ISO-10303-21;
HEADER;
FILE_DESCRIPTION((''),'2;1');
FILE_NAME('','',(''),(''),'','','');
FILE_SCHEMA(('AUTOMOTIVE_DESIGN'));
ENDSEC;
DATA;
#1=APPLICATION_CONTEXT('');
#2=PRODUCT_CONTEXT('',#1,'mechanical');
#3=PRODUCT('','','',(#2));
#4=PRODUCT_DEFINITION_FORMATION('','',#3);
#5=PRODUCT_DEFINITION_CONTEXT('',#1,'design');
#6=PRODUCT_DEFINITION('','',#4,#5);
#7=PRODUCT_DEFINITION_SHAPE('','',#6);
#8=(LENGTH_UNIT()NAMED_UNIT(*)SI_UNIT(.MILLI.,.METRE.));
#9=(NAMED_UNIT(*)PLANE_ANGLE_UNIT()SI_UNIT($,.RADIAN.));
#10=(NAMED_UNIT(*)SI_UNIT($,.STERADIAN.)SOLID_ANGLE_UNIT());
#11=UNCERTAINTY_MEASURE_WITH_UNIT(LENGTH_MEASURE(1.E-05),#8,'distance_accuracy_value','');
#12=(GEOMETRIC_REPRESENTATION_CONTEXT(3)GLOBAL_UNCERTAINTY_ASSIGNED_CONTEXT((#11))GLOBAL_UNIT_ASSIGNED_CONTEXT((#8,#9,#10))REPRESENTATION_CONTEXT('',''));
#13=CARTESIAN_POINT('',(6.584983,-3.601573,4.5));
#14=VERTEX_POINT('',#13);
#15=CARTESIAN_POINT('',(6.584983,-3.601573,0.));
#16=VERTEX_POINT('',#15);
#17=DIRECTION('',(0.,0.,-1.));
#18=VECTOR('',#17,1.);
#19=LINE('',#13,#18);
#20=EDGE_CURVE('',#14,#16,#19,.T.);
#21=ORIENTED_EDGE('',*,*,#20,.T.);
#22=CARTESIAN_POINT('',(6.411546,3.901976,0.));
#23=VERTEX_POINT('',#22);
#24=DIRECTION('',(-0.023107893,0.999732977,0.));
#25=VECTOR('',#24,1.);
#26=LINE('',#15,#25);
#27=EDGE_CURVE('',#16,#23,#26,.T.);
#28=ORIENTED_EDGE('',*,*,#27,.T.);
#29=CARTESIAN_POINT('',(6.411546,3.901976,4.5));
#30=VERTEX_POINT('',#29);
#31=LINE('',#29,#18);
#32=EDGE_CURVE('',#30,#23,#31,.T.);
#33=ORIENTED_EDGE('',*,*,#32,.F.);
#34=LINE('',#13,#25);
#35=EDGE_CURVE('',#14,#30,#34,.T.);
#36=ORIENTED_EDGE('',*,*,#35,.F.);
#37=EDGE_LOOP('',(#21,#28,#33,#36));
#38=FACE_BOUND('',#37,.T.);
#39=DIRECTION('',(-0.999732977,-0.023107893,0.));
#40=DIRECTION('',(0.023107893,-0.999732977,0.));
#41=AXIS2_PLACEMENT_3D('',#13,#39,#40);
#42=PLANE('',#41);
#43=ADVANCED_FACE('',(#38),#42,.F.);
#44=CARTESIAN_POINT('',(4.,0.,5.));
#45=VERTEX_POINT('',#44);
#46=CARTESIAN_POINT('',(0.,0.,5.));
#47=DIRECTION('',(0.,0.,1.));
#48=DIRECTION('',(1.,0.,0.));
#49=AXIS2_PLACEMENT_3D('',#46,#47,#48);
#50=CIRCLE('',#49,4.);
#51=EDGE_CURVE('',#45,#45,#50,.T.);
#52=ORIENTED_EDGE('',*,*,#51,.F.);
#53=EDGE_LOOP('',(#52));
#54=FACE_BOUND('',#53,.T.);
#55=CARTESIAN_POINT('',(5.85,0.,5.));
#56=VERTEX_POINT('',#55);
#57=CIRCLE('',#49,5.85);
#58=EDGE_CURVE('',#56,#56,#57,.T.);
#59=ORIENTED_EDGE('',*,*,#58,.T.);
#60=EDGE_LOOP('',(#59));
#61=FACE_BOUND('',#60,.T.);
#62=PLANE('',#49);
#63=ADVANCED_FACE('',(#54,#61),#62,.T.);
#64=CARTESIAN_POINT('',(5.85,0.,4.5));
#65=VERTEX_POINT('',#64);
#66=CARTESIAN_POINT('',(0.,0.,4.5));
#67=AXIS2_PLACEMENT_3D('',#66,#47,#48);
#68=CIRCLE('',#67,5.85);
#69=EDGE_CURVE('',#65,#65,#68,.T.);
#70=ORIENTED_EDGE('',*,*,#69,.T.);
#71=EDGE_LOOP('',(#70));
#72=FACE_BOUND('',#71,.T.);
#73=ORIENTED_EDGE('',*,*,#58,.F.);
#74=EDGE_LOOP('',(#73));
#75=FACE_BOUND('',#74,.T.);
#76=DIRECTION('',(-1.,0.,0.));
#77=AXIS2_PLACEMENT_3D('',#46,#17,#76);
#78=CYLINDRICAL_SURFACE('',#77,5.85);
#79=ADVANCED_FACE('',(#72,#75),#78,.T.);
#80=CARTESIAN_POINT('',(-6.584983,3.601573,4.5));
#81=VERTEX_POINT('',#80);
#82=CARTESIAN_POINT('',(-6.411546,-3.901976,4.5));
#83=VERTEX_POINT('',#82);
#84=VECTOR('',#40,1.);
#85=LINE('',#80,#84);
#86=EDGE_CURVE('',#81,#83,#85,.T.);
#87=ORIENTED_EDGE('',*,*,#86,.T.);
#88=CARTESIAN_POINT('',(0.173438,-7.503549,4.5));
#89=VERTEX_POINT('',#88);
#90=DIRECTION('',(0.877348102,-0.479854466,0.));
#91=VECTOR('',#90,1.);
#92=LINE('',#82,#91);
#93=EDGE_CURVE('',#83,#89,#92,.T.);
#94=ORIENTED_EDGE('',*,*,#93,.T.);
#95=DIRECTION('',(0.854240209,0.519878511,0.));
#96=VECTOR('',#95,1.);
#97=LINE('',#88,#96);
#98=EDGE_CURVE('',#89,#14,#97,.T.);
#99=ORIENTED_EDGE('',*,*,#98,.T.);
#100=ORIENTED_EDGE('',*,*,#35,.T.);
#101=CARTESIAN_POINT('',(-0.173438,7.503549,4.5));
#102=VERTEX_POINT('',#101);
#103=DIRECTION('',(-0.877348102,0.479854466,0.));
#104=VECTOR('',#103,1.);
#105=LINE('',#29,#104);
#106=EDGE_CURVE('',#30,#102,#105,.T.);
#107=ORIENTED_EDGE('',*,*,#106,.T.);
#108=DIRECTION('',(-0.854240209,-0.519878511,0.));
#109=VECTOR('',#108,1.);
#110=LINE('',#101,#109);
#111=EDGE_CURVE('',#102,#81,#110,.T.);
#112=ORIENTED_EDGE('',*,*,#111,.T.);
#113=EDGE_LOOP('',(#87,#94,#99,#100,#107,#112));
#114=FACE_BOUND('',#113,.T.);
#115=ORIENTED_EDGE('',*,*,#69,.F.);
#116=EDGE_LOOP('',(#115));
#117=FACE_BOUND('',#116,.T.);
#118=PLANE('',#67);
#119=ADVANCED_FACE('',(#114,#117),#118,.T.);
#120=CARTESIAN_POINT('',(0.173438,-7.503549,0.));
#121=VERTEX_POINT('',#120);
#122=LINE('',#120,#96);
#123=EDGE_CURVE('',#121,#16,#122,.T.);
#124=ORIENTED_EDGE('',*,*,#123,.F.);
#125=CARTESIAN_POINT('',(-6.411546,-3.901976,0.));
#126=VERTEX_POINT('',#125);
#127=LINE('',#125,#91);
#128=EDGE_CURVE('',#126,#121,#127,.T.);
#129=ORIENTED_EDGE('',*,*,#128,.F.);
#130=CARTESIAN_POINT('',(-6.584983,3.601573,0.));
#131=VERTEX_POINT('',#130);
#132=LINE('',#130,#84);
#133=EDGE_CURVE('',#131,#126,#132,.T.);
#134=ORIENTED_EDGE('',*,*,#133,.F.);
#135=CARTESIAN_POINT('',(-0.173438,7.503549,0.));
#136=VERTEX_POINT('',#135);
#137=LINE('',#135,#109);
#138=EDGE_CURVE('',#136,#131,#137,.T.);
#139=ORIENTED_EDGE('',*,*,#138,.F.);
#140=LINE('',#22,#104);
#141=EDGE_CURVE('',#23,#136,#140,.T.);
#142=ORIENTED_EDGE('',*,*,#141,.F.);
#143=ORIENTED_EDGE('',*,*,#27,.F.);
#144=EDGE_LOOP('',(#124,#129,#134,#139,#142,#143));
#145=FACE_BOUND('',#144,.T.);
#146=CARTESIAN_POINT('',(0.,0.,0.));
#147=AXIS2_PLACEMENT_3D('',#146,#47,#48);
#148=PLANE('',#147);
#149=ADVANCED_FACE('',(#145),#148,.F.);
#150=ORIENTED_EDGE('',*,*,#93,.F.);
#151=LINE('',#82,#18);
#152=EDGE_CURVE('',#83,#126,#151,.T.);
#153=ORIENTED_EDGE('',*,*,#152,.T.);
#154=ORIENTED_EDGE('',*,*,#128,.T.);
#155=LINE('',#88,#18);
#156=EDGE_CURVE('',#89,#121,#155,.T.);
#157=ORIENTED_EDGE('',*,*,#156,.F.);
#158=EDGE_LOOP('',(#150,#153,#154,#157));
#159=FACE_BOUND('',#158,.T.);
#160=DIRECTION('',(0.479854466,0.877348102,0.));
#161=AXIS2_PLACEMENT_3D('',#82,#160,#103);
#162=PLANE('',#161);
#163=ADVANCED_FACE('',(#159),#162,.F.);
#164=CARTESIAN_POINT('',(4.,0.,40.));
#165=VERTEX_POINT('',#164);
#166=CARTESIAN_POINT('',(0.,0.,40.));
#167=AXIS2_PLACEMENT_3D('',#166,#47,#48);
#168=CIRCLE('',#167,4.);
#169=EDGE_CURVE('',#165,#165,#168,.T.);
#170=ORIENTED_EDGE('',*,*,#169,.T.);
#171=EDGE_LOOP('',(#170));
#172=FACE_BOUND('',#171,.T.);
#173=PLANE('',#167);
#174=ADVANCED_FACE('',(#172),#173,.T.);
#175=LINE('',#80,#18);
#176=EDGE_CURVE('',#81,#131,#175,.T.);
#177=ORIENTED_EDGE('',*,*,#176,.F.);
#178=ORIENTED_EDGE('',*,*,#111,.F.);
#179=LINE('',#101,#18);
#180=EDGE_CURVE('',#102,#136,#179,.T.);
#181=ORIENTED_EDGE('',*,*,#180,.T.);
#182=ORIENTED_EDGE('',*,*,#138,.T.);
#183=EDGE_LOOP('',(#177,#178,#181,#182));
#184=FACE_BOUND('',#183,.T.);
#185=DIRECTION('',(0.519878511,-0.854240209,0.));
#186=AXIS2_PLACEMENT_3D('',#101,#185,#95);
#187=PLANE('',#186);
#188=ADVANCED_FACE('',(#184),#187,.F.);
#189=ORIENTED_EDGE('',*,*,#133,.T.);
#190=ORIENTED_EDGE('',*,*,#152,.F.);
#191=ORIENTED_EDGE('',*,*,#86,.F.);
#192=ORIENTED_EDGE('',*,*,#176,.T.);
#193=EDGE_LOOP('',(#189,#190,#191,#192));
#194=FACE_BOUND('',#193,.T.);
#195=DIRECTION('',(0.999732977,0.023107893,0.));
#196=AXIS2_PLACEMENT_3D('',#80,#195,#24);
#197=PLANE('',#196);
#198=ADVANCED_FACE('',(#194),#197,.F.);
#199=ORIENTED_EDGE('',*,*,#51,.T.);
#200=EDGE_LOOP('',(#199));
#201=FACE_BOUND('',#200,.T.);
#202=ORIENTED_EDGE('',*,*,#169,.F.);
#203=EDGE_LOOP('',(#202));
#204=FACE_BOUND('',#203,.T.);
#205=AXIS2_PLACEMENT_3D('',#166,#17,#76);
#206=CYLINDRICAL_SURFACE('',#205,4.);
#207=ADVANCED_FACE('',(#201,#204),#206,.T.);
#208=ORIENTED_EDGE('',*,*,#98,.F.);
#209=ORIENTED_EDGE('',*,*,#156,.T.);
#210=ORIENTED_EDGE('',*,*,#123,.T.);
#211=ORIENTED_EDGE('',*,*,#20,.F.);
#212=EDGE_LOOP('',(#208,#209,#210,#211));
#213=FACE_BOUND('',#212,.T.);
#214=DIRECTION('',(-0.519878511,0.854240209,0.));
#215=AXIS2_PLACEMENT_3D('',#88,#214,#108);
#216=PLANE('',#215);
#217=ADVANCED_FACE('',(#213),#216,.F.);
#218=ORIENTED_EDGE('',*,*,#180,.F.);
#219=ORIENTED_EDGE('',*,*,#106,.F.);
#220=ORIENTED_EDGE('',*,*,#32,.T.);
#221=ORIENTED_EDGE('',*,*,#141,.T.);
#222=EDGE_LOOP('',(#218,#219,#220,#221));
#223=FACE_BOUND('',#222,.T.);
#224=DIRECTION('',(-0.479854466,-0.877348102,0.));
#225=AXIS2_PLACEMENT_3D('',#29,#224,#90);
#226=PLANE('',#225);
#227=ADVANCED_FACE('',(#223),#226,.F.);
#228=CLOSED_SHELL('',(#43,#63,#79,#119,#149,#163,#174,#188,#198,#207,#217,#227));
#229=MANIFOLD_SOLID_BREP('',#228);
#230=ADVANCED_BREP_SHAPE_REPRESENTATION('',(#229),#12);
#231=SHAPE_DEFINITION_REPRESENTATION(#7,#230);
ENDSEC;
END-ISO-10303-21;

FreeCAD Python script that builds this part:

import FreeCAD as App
import Part
import Sketcher

V = App.Vector


def add_polygon(sketch, points):
    """Adds a closed chain of lines whose ends are joined by coincident constraints."""
    first, n = sketch.GeometryCount, len(points)
    for a, b in zip(points, points[1:] + points[:1]):
        sketch.addGeometry(Part.LineSegment(App.Vector(*a, 0), App.Vector(*b, 0)), False)
    for i in range(n):
        sketch.addConstraint(Sketcher.Constraint("Coincident", first + i, 2, first + (i + 1) % n, 1))

doc = App.newDocument("Part")
body = doc.addObject("PartDesign::Body", "Body")

# Sketch on XY plane
sketch1 = body.newObject("Sketcher::SketchObject", "Sketch")
sketch1.AttachmentSupport = (doc.getObject("XY_Plane"), [""])
sketch1.MapMode = "FlatFace"
add_polygon(sketch1, [(-6.411546, -3.901976), (0.173438, -7.503549), (6.584983, -3.601573), (6.411546, 3.901976), (-0.173438, 7.503549), (-6.584983, 3.601573)])  # lines 0-5
sketch1.addConstraint([
    Sketcher.Constraint("Symmetric", 0, 2, 3, 2, -1, 1),
    Sketcher.Constraint("Symmetric", 1, 2, 4, 2, -1, 1),
    Sketcher.Constraint("Symmetric", 2, 2, 5, 2, -1, 1),
    Sketcher.Constraint("Equal", 0, 1),
    Sketcher.Constraint("Equal", 1, 2),
    Sketcher.Constraint("DistanceY", 0, 2, 3, 2, 15.007099),
    Sketcher.Constraint("DistanceY", 1, 2, 2, 2, 7.503549),
    Sketcher.Constraint("DistanceX", 0, 2, 2, 2, 6.238108),
    Sketcher.Constraint("DistanceX", 3, 2, 1, 2, 6.758421),
])
pad1 = body.newObject("PartDesign::Pad", "Pad")
pad1.Profile = sketch1
pad1.Length = 4.5

# Sketch on XY plane
sketch2 = body.newObject("Sketcher::SketchObject", "Sketch001")
sketch2.AttachmentSupport = (doc.getObject("XY_Plane"), [""])
sketch2.MapMode = "FlatFace"
sketch2.AttachmentOffset = App.Placement(V(0, 0, 4.5), App.Rotation())
sketch2.addGeometry(Part.Circle(V(0, 0, 0), V(0, 0, 1), 5.85), False)
sketch2.addConstraint([
    Sketcher.Constraint("Coincident", 0, 3, -1, 1),
    Sketcher.Constraint("Diameter", 0, 11.7),
])
pad2 = body.newObject("PartDesign::Pad", "Pad001")
pad2.Profile = sketch2
pad2.Length = 0.5

# Sketch on XY plane
sketch3 = body.newObject("Sketcher::SketchObject", "Sketch002")
sketch3.AttachmentSupport = (doc.getObject("XY_Plane"), [""])
sketch3.MapMode = "FlatFace"
sketch3.AttachmentOffset = App.Placement(V(0, 0, 5), App.Rotation())
sketch3.addGeometry(Part.Circle(V(0, 0, 0), V(0, 0, 1), 4), False)
sketch3.addConstraint([
    Sketcher.Constraint("Coincident", 0, 3, -1, 1),
    Sketcher.Constraint("Diameter", 0, 8.0),
])
pad3 = body.newObject("PartDesign::Pad", "Pad002")
pad3.Profile = sketch3
pad3.Length = 35

doc.recompute()
